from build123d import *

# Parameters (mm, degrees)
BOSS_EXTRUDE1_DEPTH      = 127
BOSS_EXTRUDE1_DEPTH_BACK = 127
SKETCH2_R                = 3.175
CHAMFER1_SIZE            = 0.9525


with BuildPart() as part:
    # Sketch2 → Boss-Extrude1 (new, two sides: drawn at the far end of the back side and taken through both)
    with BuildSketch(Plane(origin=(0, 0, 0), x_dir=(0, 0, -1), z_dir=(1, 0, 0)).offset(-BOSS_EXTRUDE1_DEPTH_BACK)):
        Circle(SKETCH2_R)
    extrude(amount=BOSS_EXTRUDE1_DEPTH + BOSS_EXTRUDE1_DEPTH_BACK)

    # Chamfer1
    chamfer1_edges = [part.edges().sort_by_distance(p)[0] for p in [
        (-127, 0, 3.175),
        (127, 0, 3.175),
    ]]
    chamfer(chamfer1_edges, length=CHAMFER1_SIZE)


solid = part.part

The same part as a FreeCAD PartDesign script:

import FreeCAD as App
import Part
import Sketcher
from FreeCAD import Vector
Q = App.Units.Quantity


def edges_at(feature, points):
    """Names of the edges that pass closest to the given points."""
    edges = feature.Shape.Edges
    near = lambda p: min(range(len(edges)), key=lambda i: edges[i].distToShape(Part.Vertex(*p))[0])
    return sorted({f"Edge{near(p) + 1}" for p in points})

doc = App.newDocument("Part")
params = doc.addObject("Spreadsheet::Sheet", "Params")
for row, (alias, value) in enumerate([
    ("sketch1_diameter", "0.25 in"),
    ("pad1_length", "5 in"),
    ("pad1_length2", "5 in"),
    ("chamfer_size", "0.0375 in"),
], start=1):
    params.set(f"A{row}", alias)
    params.set(f"B{row}", "=" + value)
    params.setAlias(f"B{row}", alias)

body = doc.addObject("PartDesign::Body", "Body")

sketch1 = doc.addObject("Sketcher::SketchObject", "Sketch")
body.addObject(sketch1)
sketch1.AttachmentSupport = (doc.YZ_Plane, [""])
sketch1.MapMode = "FlatFace"
sketch1.addGeometry(Part.Circle(Vector(0, 0, 0), Vector(0, 0, 1), 3.2), False)
sketch1.addConstraint([
    Sketcher.Constraint("Coincident", 0, 3, -1, 1),
    Sketcher.Constraint("Diameter", 0, Q("0.25 in")),
])
sketch1.setExpression("Constraints[1]", "Params.sketch1_diameter")
pad1 = doc.addObject("PartDesign::Pad", "Pad")
body.addObject(pad1)
pad1.Profile = sketch1
pad1.Type = "TwoLengths"
pad1.setExpression("Length", "Params.pad1_length")
pad1.setExpression("Length2", "Params.pad1_length2")
doc.recompute()

chamfer = doc.addObject("PartDesign::Chamfer", "Chamfer")
body.addObject(chamfer)
chamfer.Base = (pad1, edges_at(pad1, [(-127, 0, 3.175), (127, 0, 3.175)]))
chamfer.setExpression("Size", "Params.chamfer_size")

doc.recompute()
